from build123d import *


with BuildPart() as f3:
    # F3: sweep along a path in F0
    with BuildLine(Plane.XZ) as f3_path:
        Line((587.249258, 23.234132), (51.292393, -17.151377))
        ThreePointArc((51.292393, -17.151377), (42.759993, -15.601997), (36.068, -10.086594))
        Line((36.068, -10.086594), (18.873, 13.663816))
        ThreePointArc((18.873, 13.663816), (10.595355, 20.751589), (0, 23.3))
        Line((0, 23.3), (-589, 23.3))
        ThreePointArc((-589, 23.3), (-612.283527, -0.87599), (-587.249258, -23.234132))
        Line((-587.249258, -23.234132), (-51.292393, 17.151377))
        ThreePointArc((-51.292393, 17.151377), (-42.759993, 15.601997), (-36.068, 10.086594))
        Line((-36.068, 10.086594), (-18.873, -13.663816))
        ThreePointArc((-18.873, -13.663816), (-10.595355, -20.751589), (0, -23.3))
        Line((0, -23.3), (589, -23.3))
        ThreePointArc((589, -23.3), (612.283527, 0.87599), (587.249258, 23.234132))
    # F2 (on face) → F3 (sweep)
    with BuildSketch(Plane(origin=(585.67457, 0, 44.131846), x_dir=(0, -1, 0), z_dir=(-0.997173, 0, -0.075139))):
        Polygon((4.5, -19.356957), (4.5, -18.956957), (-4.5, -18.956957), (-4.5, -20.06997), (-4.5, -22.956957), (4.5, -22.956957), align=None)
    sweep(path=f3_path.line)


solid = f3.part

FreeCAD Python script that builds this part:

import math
import FreeCAD as App
import Part
import Sketcher

V = App.Vector
Q = App.Units.Quantity

doc = App.newDocument("Part")
body = doc.addObject("PartDesign::Body", "Body")

# Sketch on an angled plane
sketch1 = body.newObject("Sketcher::SketchObject", "Sketch")
sketch1.Placement = App.Placement(V(585.67457, 0, 44.131846), App.Rotation(V(0, -1, 0), V(-0.075139005, 0, 0.997173069), V(-0.997173069, 0, -0.075139005), "ZXY"))
sketch1.addGeometry([
    Part.LineSegment(V(4.5, -19, 0), V(-4.5, -19, 0)),
    Part.LineSegment(V(-4.5, -19, 0), V(-4.5, -23, 0)),
    Part.LineSegment(V(-4.5, -23, 0), V(4.5, -23, 0)),
    Part.LineSegment(V(4.5, -23, 0), V(4.5, -19, 0)),
], False)
sketch1.addConstraint([
    Sketcher.Constraint("Coincident", 0, 2, 1, 1),
    Sketcher.Constraint("Coincident", 1, 2, 2, 1),
    Sketcher.Constraint("Coincident", 2, 2, 3, 1),
    Sketcher.Constraint("Coincident", 3, 2, 0, 1),
    Sketcher.Constraint("Horizontal", 0),
    Sketcher.Constraint("Vertical", 1),
    Sketcher.Constraint("Horizontal", 2),
    Sketcher.Constraint("Vertical", 3),
    Sketcher.Constraint("DistanceX", 0, 2, 0, 1, Q("9 mm")),
    Sketcher.Constraint("DistanceY", 1, 2, 1, 1, Q("4 mm")),
    Sketcher.Constraint("DistanceX", 0, 2, -1, 1, Q("4.5 mm")),
    Sketcher.Constraint("DistanceY", 0, 2, -1, 1, Q("18.956957 mm")),
])

# Sketch on XZ plane
sketch2 = body.newObject("Sketcher::SketchObject", "Sketch001")
sketch2.AttachmentSupport = (doc.getObject("XZ_Plane"), [""])
sketch2.MapMode = "FlatFace"
sketch2.addGeometry([
    Part.LineSegment(V(587, 23, 0), V(51, -17, 0)),  # 0
    Part.ArcOfCircle(Part.Circle(V(50, 0, 0), V(0, 0, 1), 17), math.radians(-144), math.radians(-86)),  # 1
    Part.LineSegment(V(36, -10, 0), V(19, 14, 0)),  # 2
    Part.ArcOfCircle(Part.Circle(V(0, 0, 0), V(0, 0, 1), 23), math.radians(36), math.radians(90)),  # 3
    Part.LineSegment(V(0, 23, 0), V(-589, 23, 0)),  # 4
    Part.ArcOfCircle(Part.Circle(V(-589, 0, 0), V(0, 0, 1), 23), math.radians(90), math.radians(274)),  # 5
    Part.LineSegment(V(-587, -23, 0), V(-51, 17, 0)),  # 6
    Part.ArcOfCircle(Part.Circle(V(-50, 0, 0), V(0, 0, 1), 17), math.radians(36), math.radians(94)),  # 7
    Part.LineSegment(V(-36, 10, 0), V(-19, -14, 0)),  # 8
    Part.ArcOfCircle(Part.Circle(V(0, 0, 0), V(0, 0, 1), 23), math.radians(-144), math.radians(-90)),  # 9
    Part.LineSegment(V(0, -23, 0), V(589, -23, 0)),  # 10
    Part.ArcOfCircle(Part.Circle(V(589, 0, 0), V(0, 0, 1), 23), math.radians(-90), math.radians(94)),  # 11
], False)
sketch2.addConstraint([
    Sketcher.Constraint("Tangent", 0, 2, 1, 2),
    Sketcher.Constraint("Tangent", 1, 1, 2, 1),
    Sketcher.Constraint("Tangent", 2, 2, 3, 1),
    Sketcher.Constraint("Tangent", 3, 2, 4, 1),
    Sketcher.Constraint("Tangent", 4, 2, 5, 1),
    Sketcher.Constraint("Tangent", 5, 2, 6, 1),
    Sketcher.Constraint("Tangent", 6, 2, 7, 2),
    Sketcher.Constraint("Tangent", 7, 1, 8, 1),
    Sketcher.Constraint("Tangent", 8, 2, 9, 1),
    Sketcher.Constraint("Tangent", 9, 2, 10, 1),
    Sketcher.Constraint("Tangent", 10, 2, 11, 1),
    Sketcher.Constraint("Tangent", 11, 2, 0, 1),
    Sketcher.Constraint("Horizontal", 4),
    Sketcher.Constraint("Horizontal", 10),
    Sketcher.Constraint("Coincident", 3, 3, -1, 1),
    Sketcher.Constraint("Coincident", 9, 3, -1, 1),
    Sketcher.Constraint("Equal", 3, 5),
    Sketcher.Constraint("Equal", 1, 7),
    Sketcher.Constraint("Equal", 5, 9),
    Sketcher.Constraint("Equal", 9, 11),
    Sketcher.Constraint("Symmetric", 1, 3, 7, 3, -1, 1),
    Sketcher.Constraint("PointOnObject", 1, 3, -1),
    Sketcher.Constraint("Parallel", 0, 6),
    Sketcher.Constraint("Radius", 1, Q("17.199999 mm")),
    Sketcher.Constraint("Radius", 3, Q("23.300001 mm")),
    Sketcher.Constraint("DistanceX", 4, 2, 4, 1, Q("589 mm")),
    Sketcher.Constraint("DistanceX", -1, 1, 1, 3, Q("50 mm")),
])
doc.recompute()

additivepipe = body.newObject("PartDesign::AdditivePipe", "AdditivePipe")
additivepipe.Profile = sketch1
additivepipe.Spine = (sketch2, ["Edge1", "Edge2", "Edge3", "Edge4", "Edge5", "Edge6", "Edge7", "Edge8", "Edge9", "Edge10", "Edge11", "Edge12"])

doc.recompute()
